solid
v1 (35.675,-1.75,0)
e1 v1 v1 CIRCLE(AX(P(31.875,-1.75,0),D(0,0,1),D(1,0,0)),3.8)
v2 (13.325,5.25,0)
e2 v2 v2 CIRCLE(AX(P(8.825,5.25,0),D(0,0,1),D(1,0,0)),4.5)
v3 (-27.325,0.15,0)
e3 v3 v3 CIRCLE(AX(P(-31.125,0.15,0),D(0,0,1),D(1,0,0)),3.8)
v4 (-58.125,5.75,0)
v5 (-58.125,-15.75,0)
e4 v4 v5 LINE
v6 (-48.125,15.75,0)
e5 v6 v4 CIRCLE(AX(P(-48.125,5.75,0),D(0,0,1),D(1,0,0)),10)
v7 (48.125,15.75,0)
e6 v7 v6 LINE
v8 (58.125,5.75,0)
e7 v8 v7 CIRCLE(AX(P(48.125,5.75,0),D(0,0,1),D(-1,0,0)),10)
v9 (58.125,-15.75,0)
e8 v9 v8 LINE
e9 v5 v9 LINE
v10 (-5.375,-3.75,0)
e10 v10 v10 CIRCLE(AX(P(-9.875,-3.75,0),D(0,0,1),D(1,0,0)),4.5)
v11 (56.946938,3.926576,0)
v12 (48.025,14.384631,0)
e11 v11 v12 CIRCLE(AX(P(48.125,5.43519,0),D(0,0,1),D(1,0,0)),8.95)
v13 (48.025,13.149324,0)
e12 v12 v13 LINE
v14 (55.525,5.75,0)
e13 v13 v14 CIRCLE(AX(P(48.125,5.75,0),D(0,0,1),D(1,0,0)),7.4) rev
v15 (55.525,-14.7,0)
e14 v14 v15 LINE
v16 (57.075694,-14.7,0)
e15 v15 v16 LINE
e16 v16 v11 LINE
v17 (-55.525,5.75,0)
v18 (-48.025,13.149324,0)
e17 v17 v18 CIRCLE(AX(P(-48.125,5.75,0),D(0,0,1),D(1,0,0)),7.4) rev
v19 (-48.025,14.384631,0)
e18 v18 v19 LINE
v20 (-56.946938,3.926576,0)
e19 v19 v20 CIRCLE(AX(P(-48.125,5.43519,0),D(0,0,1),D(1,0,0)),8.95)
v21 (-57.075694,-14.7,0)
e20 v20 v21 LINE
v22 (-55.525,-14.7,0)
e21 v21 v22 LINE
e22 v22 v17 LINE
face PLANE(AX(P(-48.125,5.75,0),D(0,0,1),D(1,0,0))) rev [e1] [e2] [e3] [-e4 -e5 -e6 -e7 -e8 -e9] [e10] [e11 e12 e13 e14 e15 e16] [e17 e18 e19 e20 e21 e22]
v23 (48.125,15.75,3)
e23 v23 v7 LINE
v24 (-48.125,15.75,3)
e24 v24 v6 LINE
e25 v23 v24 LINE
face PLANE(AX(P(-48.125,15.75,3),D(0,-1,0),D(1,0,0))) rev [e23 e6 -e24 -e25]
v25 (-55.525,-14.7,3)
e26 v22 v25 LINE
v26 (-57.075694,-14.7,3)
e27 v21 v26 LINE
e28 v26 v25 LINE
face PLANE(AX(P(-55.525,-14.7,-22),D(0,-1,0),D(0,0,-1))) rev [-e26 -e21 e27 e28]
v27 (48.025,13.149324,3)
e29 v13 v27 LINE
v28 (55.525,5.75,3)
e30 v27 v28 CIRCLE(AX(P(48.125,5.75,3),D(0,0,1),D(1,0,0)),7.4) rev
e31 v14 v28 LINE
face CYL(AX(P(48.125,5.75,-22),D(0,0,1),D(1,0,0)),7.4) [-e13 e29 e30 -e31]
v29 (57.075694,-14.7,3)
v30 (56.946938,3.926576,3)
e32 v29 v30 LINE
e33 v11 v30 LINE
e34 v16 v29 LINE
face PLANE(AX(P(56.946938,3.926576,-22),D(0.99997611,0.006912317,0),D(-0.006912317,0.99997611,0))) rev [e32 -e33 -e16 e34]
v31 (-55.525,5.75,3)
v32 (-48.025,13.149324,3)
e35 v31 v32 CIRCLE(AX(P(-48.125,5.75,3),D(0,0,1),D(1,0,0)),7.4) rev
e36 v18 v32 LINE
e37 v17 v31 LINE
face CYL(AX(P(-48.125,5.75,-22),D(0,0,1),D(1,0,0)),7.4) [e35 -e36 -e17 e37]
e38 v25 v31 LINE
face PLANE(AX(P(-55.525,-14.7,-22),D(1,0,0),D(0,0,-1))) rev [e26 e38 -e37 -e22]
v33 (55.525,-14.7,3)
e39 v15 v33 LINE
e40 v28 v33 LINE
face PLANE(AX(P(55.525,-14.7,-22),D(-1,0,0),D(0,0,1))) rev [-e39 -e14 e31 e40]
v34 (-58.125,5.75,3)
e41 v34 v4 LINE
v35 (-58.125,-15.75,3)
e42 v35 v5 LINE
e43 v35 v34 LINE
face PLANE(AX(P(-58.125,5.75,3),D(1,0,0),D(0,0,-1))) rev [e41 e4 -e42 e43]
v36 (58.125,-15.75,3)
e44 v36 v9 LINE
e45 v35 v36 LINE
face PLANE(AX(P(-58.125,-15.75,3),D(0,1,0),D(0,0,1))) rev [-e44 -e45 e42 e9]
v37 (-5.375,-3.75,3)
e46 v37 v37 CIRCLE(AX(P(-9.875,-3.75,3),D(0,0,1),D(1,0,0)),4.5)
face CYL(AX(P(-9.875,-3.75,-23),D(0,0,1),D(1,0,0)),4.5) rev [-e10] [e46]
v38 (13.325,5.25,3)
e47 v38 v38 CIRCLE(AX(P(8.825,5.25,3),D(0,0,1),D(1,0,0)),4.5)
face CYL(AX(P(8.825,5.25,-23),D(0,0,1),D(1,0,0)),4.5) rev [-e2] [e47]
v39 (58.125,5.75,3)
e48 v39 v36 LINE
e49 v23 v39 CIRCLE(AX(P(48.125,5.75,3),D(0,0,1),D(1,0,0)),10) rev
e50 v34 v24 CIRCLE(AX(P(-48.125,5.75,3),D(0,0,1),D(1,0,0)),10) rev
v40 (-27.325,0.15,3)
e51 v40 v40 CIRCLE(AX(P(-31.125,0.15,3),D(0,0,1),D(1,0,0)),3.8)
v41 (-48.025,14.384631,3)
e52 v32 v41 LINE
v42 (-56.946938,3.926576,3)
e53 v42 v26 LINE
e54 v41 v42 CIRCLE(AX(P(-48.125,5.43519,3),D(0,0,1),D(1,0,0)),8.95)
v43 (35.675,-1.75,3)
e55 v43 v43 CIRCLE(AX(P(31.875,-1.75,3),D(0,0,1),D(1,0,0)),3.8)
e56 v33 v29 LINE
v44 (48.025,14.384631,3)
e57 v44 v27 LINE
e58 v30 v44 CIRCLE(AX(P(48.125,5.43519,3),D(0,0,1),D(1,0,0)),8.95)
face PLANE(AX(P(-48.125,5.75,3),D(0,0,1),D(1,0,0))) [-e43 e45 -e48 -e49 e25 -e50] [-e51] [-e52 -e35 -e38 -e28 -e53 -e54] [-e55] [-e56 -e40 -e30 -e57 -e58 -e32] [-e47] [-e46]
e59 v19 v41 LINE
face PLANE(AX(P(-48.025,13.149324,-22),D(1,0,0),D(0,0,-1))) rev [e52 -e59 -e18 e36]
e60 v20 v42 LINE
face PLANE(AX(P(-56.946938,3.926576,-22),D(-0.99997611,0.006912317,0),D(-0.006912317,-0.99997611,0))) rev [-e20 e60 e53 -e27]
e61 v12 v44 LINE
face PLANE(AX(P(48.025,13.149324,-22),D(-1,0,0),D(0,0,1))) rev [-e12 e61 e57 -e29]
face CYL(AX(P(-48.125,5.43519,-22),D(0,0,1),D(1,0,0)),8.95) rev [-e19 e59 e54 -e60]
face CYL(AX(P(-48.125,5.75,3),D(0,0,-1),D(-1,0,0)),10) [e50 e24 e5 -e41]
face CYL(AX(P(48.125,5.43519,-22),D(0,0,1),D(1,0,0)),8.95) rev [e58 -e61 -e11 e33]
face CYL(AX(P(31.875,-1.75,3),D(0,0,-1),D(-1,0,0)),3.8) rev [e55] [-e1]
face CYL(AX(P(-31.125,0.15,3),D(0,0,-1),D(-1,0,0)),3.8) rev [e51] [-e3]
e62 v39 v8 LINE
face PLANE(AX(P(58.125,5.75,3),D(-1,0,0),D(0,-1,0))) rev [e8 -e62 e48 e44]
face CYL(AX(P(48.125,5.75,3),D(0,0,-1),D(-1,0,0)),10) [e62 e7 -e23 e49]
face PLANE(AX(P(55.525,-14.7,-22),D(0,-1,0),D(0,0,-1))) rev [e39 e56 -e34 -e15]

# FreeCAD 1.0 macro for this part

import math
import FreeCAD as App
import Part
import Sketcher
from FreeCAD import Vector
Q = App.Units.Quantity

doc = App.newDocument("Part")
body = doc.addObject("PartDesign::Body", "Body")

# Sketch on XY plane
sketch1 = body.newObject("Sketcher::SketchObject", "Sketch")
sketch1.AttachmentSupport = (doc.getObject("XY_Plane"), [""])
sketch1.MapMode = "FlatFace"
sketch1.addGeometry(Part.LineSegment(Vector(48.1, 15.8, 0), Vector(-48.1, 15.8, 0)), False)
sketch1.addGeometry(Part.ArcOfCircle(Part.Circle(Vector(-48.1, 5.8, 0), Vector(0, 0, 1), 10), math.radians(90), math.radians(180)), False)
sketch1.addGeometry(Part.LineSegment(Vector(-58.1, 5.8, 0), Vector(-58.1, -15.8, 0)), False)
sketch1.addGeometry(Part.LineSegment(Vector(-58.1, -15.8, 0), Vector(58.1, -15.8, 0)), False)
sketch1.addGeometry(Part.LineSegment(Vector(58.1, -15.8, 0), Vector(58.1, 5.8, 0)), False)
sketch1.addGeometry(Part.ArcOfCircle(Part.Circle(Vector(48.1, 5.8, 0), Vector(0, 0, 1), 10), math.radians(0), math.radians(90)), False)
sketch1.addGeometry(Part.Circle(Vector(31.9, -1.8, 0), Vector(0, 0, 1), 3.8), False)
sketch1.addGeometry(Part.Circle(Vector(-31.1, 0.1, 0), Vector(0, 0, 1), 3.8), False)
sketch1.addConstraint(Sketcher.Constraint("Tangent", 0, 2, 1, 1))
sketch1.addConstraint(Sketcher.Constraint("Tangent", 1, 2, 2, 1))
sketch1.addConstraint(Sketcher.Constraint("Coincident", 2, 2, 3, 1))
sketch1.addConstraint(Sketcher.Constraint("Coincident", 3, 2, 4, 1))
sketch1.addConstraint(Sketcher.Constraint("Tangent", 4, 2, 5, 1))
sketch1.addConstraint(Sketcher.Constraint("Tangent", 5, 2, 0, 1))
sketch1.addConstraint(Sketcher.Constraint("Horizontal", 0))
sketch1.addConstraint(Sketcher.Constraint("Vertical", 2))
sketch1.addConstraint(Sketcher.Constraint("Horizontal", 3))
sketch1.addConstraint(Sketcher.Constraint("Vertical", 4))
sketch1.addConstraint(Sketcher.Constraint("Equal", 1, 5))
sketch1.addConstraint(Sketcher.Constraint("Equal", 6, 7))
sketch1.addConstraint(Sketcher.Constraint("Radius", 1, Q("10 mm")))
sketch1.addConstraint(Sketcher.Constraint("Diameter", 6, Q("7.6 mm")))
sketch1.addConstraint(Sketcher.Constraint("DistanceY", 2, 2, 2, 1, Q("21.5 mm")))
sketch1.addConstraint(Sketcher.Constraint("DistanceX", 1, 3, 6, 3, Q("80 mm")))
sketch1.addConstraint(Sketcher.Constraint("DistanceX", 1, 3, 7, 3, Q("17 mm")))
sketch1.addConstraint(Sketcher.Constraint("DistanceY", 2, 2, 6, 3, Q("14 mm")))
sketch1.addConstraint(Sketcher.Constraint("DistanceX", 0, 2, 0, 1, Q("96.25 mm")))
sketch1.addConstraint(Sketcher.Constraint("DistanceY", 7, 3, 1, 3, Q("5.6 mm")))
sketch1.addConstraint(Sketcher.Constraint("DistanceY", -1, 1, 1, 3, Q("5.75 mm")))
sketch1.addConstraint(Sketcher.Constraint("DistanceX", 1, 3, -1, 1, Q("48.125 mm")))
pad1 = body.newObject("PartDesign::Pad", "Pad")
pad1.Profile = sketch1
pad1.Length = 3

# Sketch on XY plane
sketch2 = body.newObject("Sketcher::SketchObject", "Sketch001")
sketch2.AttachmentSupport = (doc.getObject("XY_Plane"), [""])
sketch2.MapMode = "FlatFace"
sketch2.AttachmentOffset = App.Placement(Vector(0, 0, 3), App.Rotation())
sketch2.addGeometry(Part.Circle(Vector(8.8, 5.2, 0), Vector(0, 0, 1), 4.3), False)
sketch2.addGeometry(Part.Circle(Vector(-9.9, -3.8, 0), Vector(0, 0, 1), 4.3), False)
sketch2.addGeometry(Part.LineSegment(Vector(55.6, 5.8, 0), Vector(55.6, -15.8, 0)), False)
sketch2.addGeometry(Part.LineSegment(Vector(55.6, -15.8, 0), Vector(58.1, -15.8, 0)), False)
sketch2.addGeometry(Part.LineSegment(Vector(58.1, -15.8, 0), Vector(58.1, 5.8, 0)), False)
sketch2.addGeometry(Part.ArcOfCircle(Part.Circle(Vector(48.1, 5.8, 0), Vector(0, 0, 1), 10), math.radians(0), math.radians(90)), False)
sketch2.addGeometry(Part.LineSegment(Vector(48.1, 15.8, 0), Vector(48.1, 13.2, 0)), False)
sketch2.addGeometry(Part.ArcOfCircle(Part.Circle(Vector(48.1, 5.8, 0), Vector(0, 0, 1), 7.5), math.radians(0), math.radians(90)), False)
sketch2.addGeometry(Part.LineSegment(Vector(-58.1, -15.8, 0), Vector(-55.6, -15.8, 0)), False)
sketch2.addGeometry(Part.LineSegment(Vector(-55.6, -15.8, 0), Vector(-55.6, 5.8, 0)), False)
sketch2.addGeometry(Part.ArcOfCircle(Part.Circle(Vector(-48.1, 5.8, 0), Vector(0, 0, 1), 7.5), math.radians(90), math.radians(180)), False)
sketch2.addGeometry(Part.LineSegment(Vector(-48.1, 13.2, 0), Vector(-48.1, 15.8, 0)), False)
sketch2.addGeometry(Part.ArcOfCircle(Part.Circle(Vector(-48.1, 5.8, 0), Vector(0, 0, 1), 10), math.radians(90), math.radians(180)), False)
sketch2.addGeometry(Part.LineSegment(Vector(-58.1, 5.8, 0), Vector(-58.1, -15.8, 0)), False)
sketch2.addConstraint(Sketcher.Constraint("Coincident", 2, 2, 3, 1))
sketch2.addConstraint(Sketcher.Constraint("Coincident", 3, 2, 4, 1))
sketch2.addConstraint(Sketcher.Constraint("Tangent", 4, 2, 5, 1))
sketch2.addConstraint(Sketcher.Constraint("Coincident", 5, 2, 6, 1))
sketch2.addConstraint(Sketcher.Constraint("Coincident", 6, 2, 7, 2))
sketch2.addConstraint(Sketcher.Constraint("Tangent", 7, 1, 2, 1))
sketch2.addConstraint(Sketcher.Constraint("Coincident", 8, 2, 9, 1))
sketch2.addConstraint(Sketcher.Constraint("Tangent", 9, 2, 10, 2))
sketch2.addConstraint(Sketcher.Constraint("Coincident", 10, 1, 11, 1))
sketch2.addConstraint(Sketcher.Constraint("Coincident", 11, 2, 12, 1))
sketch2.addConstraint(Sketcher.Constraint("Tangent", 12, 2, 13, 1))
sketch2.addConstraint(Sketcher.Constraint("Coincident", 13, 2, 8, 1))
sketch2.addConstraint(Sketcher.Constraint("Vertical", 2))
sketch2.addConstraint(Sketcher.Constraint("Horizontal", 3))
sketch2.addConstraint(Sketcher.Constraint("Vertical", 4))
sketch2.addConstraint(Sketcher.Constraint("Vertical", 6))
sketch2.addConstraint(Sketcher.Constraint("Horizontal", 8))
sketch2.addConstraint(Sketcher.Constraint("Vertical", 9))
sketch2.addConstraint(Sketcher.Constraint("Vertical", 11))
sketch2.addConstraint(Sketcher.Constraint("Vertical", 13))
sketch2.addConstraint(Sketcher.Constraint("Coincident", 7, 3, 5, 3))
sketch2.addConstraint(Sketcher.Constraint("Coincident", 12, 3, 10, 3))
sketch2.addConstraint(Sketcher.Constraint("Equal", 0, 1))
sketch2.addConstraint(Sketcher.Constraint("Equal", 7, 10))
sketch2.addConstraint(Sketcher.Constraint("Equal", 5, 12))
sketch2.addConstraint(Sketcher.Constraint("Symmetric", 5, 3, 10, 3, -2))
sketch2.addConstraint(Sketcher.Constraint("Horizontal", 3, 2, 8, 2))
sketch2.addConstraint(Sketcher.Constraint("Vertical", 7, 3, 5, 2))
sketch2.addConstraint(Sketcher.Constraint("Vertical", 12, 3, 10, 1))
sketch2.addConstraint(Sketcher.Constraint("Radius", 5, Q("10 mm")))
sketch2.addConstraint(Sketcher.Constraint("Diameter", 0, Q("8.7 mm")))
sketch2.addConstraint(Sketcher.Constraint("Radius", 7, Q("7.5 mm")))
sketch2.addConstraint(Sketcher.Constraint("DistanceY", 2, 2, 2, 1, Q("21.5 mm")))
sketch2.addConstraint(Sketcher.Constraint("DistanceY", 1, 3, 0, 3, Q("9 mm")))
sketch2.addConstraint(Sketcher.Constraint("DistanceX", 1, 3, 5, 3, Q("58 mm")))
sketch2.addConstraint(Sketcher.Constraint("DistanceY", 2, 2, 0, 3, Q("21 mm")))
sketch2.addConstraint(Sketcher.Constraint("DistanceX", 1, 3, 0, 3, Q("18.7 mm")))
sketch2.addConstraint(Sketcher.Constraint("DistanceY", -1, 1, 0, 3, Q("5.25 mm")))
sketch2.addConstraint(Sketcher.Constraint("DistanceX", 10, 3, 1, 3, Q("38.25 mm")))
pad2 = body.newObject("PartDesign::Pad", "Pad001")
pad2.Profile = sketch2
pad2.Length = 25

# Sketch on XY plane
sketch3 = body.newObject("Sketcher::SketchObject", "Sketch002")
sketch3.AttachmentSupport = (doc.getObject("XY_Plane"), [""])
sketch3.MapMode = "FlatFace"
sketch3.AttachmentOffset = App.Placement(Vector(0, 0, 27), App.Rotation())
sketch3.addGeometry(Part.Circle(Vector(8.8, 5.2, 0), Vector(0, 0, 1), 4.3), False)
sketch3.addGeometry(Part.Circle(Vector(-9.9, -3.8, 0), Vector(0, 0, 1), 4.3), False)
sketch3.addConstraint(Sketcher.Constraint("Equal", 0, 1))
sketch3.addConstraint(Sketcher.Constraint("Diameter", 0, Q("8.7 mm")))
sketch3.addConstraint(Sketcher.Constraint("DistanceY", 1, 3, 0, 3, Q("9 mm")))
sketch3.addConstraint(Sketcher.Constraint("DistanceX", 1, 3, 0, 3, Q("18.7 mm")))
sketch3.addConstraint(Sketcher.Constraint("DistanceY", -1, 1, 0, 3, Q("5.25 mm")))
sketch3.addConstraint(Sketcher.Constraint("DistanceX", -1, 1, 0, 3, Q("8.825 mm")))
pocket1 = body.newObject("PartDesign::Pocket", "Pocket")
pocket1.Profile = sketch3
pocket1.Length = 1
pocket1.Reversed = True

# Sketch on XY plane
sketch4 = body.newObject("Sketcher::SketchObject", "Sketch003")
sketch4.AttachmentSupport = (doc.getObject("XY_Plane"), [""])
sketch4.MapMode = "FlatFace"
sketch4.AttachmentOffset = App.Placement(Vector(0, 0, 28), App.Rotation())
sketch4.addGeometry(Part.LineSegment(Vector(55.5, 5.8, 0), Vector(55.5, -14.7, 0)), False)
sketch4.addGeometry(Part.LineSegment(Vector(55.5, -14.7, 0), Vector(57.1, -14.7, 0)), False)
sketch4.addGeometry(Part.LineSegment(Vector(57.1, -14.7, 0), Vector(56.9, 3.9, 0)), False)
sketch4.addGeometry(Part.ArcOfCircle(Part.Circle(Vector(48.1, 5.4, 0), Vector(0, 0, 1), 8.9), math.radians(-10), math.radians(91)), False)
sketch4.addGeometry(Part.LineSegment(Vector(48, 14.4, 0), Vector(48, 13.1, 0)), False)
sketch4.addGeometry(Part.ArcOfCircle(Part.Circle(Vector(48.1, 5.7, 0), Vector(0, 0, 1), 7.4), math.radians(0), math.radians(91)), False)
sketch4.addGeometry(Part.LineSegment(Vector(-56.9, 3.9, 0), Vector(-57.1, -14.7, 0)), False)
sketch4.addGeometry(Part.LineSegment(Vector(-57.1, -14.7, 0), Vector(-55.5, -14.7, 0)), False)
sketch4.addGeometry(Part.LineSegment(Vector(-55.5, -14.7, 0), Vector(-55.5, 5.8, 0)), False)
sketch4.addGeometry(Part.ArcOfCircle(Part.Circle(Vector(-48.1, 5.7, 0), Vector(0, 0, 1), 7.4), math.radians(89), math.radians(180)), False)
sketch4.addGeometry(Part.LineSegment(Vector(-48, 13.1, 0), Vector(-48, 14.4, 0)), False)
sketch4.addGeometry(Part.ArcOfCircle(Part.Circle(Vector(-48.1, 5.4, 0), Vector(0, 0, 1), 8.9), math.radians(89), math.radians(190)), False)
sketch4.addConstraint(Sketcher.Constraint("Coincident", 0, 2, 1, 1))
sketch4.addConstraint(Sketcher.Constraint("Coincident", 1, 2, 2, 1))
sketch4.addConstraint(Sketcher.Constraint("Coincident", 2, 2, 3, 1))
sketch4.addConstraint(Sketcher.Constraint("Coincident", 3, 2, 4, 1))
sketch4.addConstraint(Sketcher.Constraint("Coincident", 4, 2, 5, 2))
sketch4.addConstraint(Sketcher.Constraint("Tangent", 5, 1, 0, 1))
sketch4.addConstraint(Sketcher.Constraint("Coincident", 6, 2, 7, 1))
sketch4.addConstraint(Sketcher.Constraint("Coincident", 7, 2, 8, 1))
sketch4.addConstraint(Sketcher.Constraint("Tangent", 8, 2, 9, 2))
sketch4.addConstraint(Sketcher.Constraint("Coincident", 9, 1, 10, 1))
sketch4.addConstraint(Sketcher.Constraint("Coincident", 10, 2, 11, 1))
sketch4.addConstraint(Sketcher.Constraint("Coincident", 11, 2, 6, 1))
sketch4.addConstraint(Sketcher.Constraint("Vertical", 0))
sketch4.addConstraint(Sketcher.Constraint("Horizontal", 1))
sketch4.addConstraint(Sketcher.Constraint("Vertical", 4))
sketch4.addConstraint(Sketcher.Constraint("Horizontal", 7))
sketch4.addConstraint(Sketcher.Constraint("Vertical", 8))
sketch4.addConstraint(Sketcher.Constraint("Vertical", 10))
sketch4.addConstraint(Sketcher.Constraint("Equal", 5, 9))
sketch4.addConstraint(Sketcher.Constraint("Equal", 3, 11))
sketch4.addConstraint(Sketcher.Constraint("Symmetric", 5, 3, 9, 3, -2))
sketch4.addConstraint(Sketcher.Constraint("Symmetric", 3, 3, 11, 3, -2))
sketch4.addConstraint(Sketcher.Constraint("Symmetric", 1, 2, 6, 2, -2))
sketch4.addConstraint(Sketcher.Constraint("Horizontal", 4, 2, 9, 1))
sketch4.addConstraint(Sketcher.Constraint("Horizontal", 2, 2, 11, 2))
sketch4.addConstraint(Sketcher.Constraint("Vertical", 3, 3, 5, 3))
sketch4.addConstraint(Sketcher.Constraint("Radius", 5, Q("7.4 mm")))
sketch4.addConstraint(Sketcher.Constraint("Radius", 3, Q("8.95 mm")))
sketch4.addConstraint(Sketcher.Constraint("DistanceY", 0, 2, 0, 1, Q("20.45 mm")))
sketch4.addConstraint(Sketcher.Constraint("DistanceY", 0, 2, -1, 1, Q("14.7 mm")))
sketch4.addConstraint(Sketcher.Constraint("DistanceX", 3, 2, 5, 3, Q("0.1 mm")))
sketch4.addConstraint(Sketcher.Constraint("DistanceX", 9, 3, 5, 3, Q("96.25 mm")))
sketch4.addConstraint(Sketcher.Constraint("Distance", 2, Q("18.627021 mm")))
sketch4.addConstraint(Sketcher.Constraint("DistanceX", 1, 1, 1, 2, Q("1.550694 mm")))
sketch4.addConstraint(Sketcher.Constraint("DistanceY", 4, 2, 4, 1, Q("1.235307 mm")))
pocket2 = body.newObject("PartDesign::Pocket", "Pocket001")
pocket2.Profile = sketch4
pocket2.Length = 50

# Sketch on XY plane
sketch5 = body.newObject("Sketcher::SketchObject", "Sketch004")
sketch5.AttachmentSupport = (doc.getObject("XY_Plane"), [""])
sketch5.MapMode = "FlatFace"
sketch5.AttachmentOffset = App.Placement(Vector(0, 0, 27), App.Rotation())
sketch5.addGeometry(Part.Circle(Vector(-9.9, -3.8, 0), Vector(0, 0, 1), 4.5), False)
sketch5.addGeometry(Part.Circle(Vector(8.8, 5.2, 0), Vector(0, 0, 1), 4.5), False)
sketch5.addConstraint(Sketcher.Constraint("Equal", 0, 1))
sketch5.addConstraint(Sketcher.Constraint("Diameter", 0, Q("9 mm")))
sketch5.addConstraint(Sketcher.Constraint("DistanceY", 0, 3, 1, 3, Q("9 mm")))
sketch5.addConstraint(Sketcher.Constraint("DistanceX", 0, 3, 1, 3, Q("18.7 mm")))
sketch5.addConstraint(Sketcher.Constraint("DistanceY", 0, 3, -1, 1, Q("3.75 mm")))
sketch5.addConstraint(Sketcher.Constraint("DistanceX", 0, 3, -1, 1, Q("9.875 mm")))
pocket3 = body.newObject("PartDesign::Pocket", "Pocket002")
pocket3.Profile = sketch5
pocket3.Length = 50

# Sketch on XY plane
sketch6 = body.newObject("Sketcher::SketchObject", "Sketch005")
sketch6.AttachmentSupport = (doc.getObject("XY_Plane"), [""])
sketch6.MapMode = "FlatFace"
sketch6.AttachmentOffset = App.Placement(Vector(0, 0, 28), App.Rotation())
sketch6.addGeometry(Part.LineSegment(Vector(57.1, -14.7, 0), Vector(55.6, -14.7, 0)), False)
sketch6.addGeometry(Part.LineSegment(Vector(55.6, -14.7, 0), Vector(55.6, -15.8, 0)), False)
sketch6.addGeometry(Part.LineSegment(Vector(55.6, -15.8, 0), Vector(58.1, -15.8, 0)), False)
sketch6.addGeometry(Part.LineSegment(Vector(58.1, -15.8, 0), Vector(58.1, 5.8, 0)), False)
sketch6.addGeometry(Part.ArcOfCircle(Part.Circle(Vector(48.1, 5.8, 0), Vector(0, 0, 1), 10), math.radians(0), math.radians(90)), False)
sketch6.addGeometry(Part.LineSegment(Vector(48.1, 15.8, 0), Vector(48.1, 14.4, 0)), False)
sketch6.addGeometry(Part.ArcOfCircle(Part.Circle(Vector(48.1, 5.4, 0), Vector(0, 0, 1), 8.9), math.radians(-10), math.radians(90)), False)
sketch6.addGeometry(Part.LineSegment(Vector(56.9, 3.9, 0), Vector(57.1, -14.7, 0)), False)
sketch6.addGeometry(Part.LineSegment(Vector(-48.1, 14.4, 0), Vector(-48.1, 15.8, 0)), False)
sketch6.addGeometry(Part.ArcOfCircle(Part.Circle(Vector(-48.1, 5.8, 0), Vector(0, 0, 1), 10), math.radians(90), math.radians(180)), False)
sketch6.addGeometry(Part.LineSegment(Vector(-58.1, 5.8, 0), Vector(-58.1, -15.8, 0)), False)
sketch6.addGeometry(Part.LineSegment(Vector(-58.1, -15.8, 0), Vector(-55.6, -15.8, 0)), False)
sketch6.addGeometry(Part.LineSegment(Vector(-55.6, -15.8, 0), Vector(-55.6, -14.7, 0)), False)
sketch6.addGeometry(Part.LineSegment(Vector(-55.6, -14.7, 0), Vector(-57.1, -14.7, 0)), False)
sketch6.addGeometry(Part.LineSegment(Vector(-57.1, -14.7, 0), Vector(-56.9, 3.9, 0)), False)
sketch6.addGeometry(Part.ArcOfCircle(Part.Circle(Vector(-48.1, 5.4, 0), Vector(0, 0, 1), 8.9), math.radians(90), math.radians(190)), False)
sketch6.addConstraint(Sketcher.Constraint("Coincident", 0, 2, 1, 1))
sketch6.addConstraint(Sketcher.Constraint("Coincident", 1, 2, 2, 1))
sketch6.addConstraint(Sketcher.Constraint("Coincident", 2, 2, 3, 1))
sketch6.addConstraint(Sketcher.Constraint("Tangent", 3, 2, 4, 1))
sketch6.addConstraint(Sketcher.Constraint("Coincident", 4, 2, 5, 1))
sketch6.addConstraint(Sketcher.Constraint("Coincident", 5, 2, 6, 2))
sketch6.addConstraint(Sketcher.Constraint("Coincident", 6, 1, 7, 1))
sketch6.addConstraint(Sketcher.Constraint("Coincident", 7, 2, 0, 1))
sketch6.addConstraint(Sketcher.Constraint("Coincident", 8, 2, 9, 1))
sketch6.addConstraint(Sketcher.Constraint("Tangent", 9, 2, 10, 1))
sketch6.addConstraint(Sketcher.Constraint("Coincident", 10, 2, 11, 1))
sketch6.addConstraint(Sketcher.Constraint("Coincident", 11, 2, 12, 1))
sketch6.addConstraint(Sketcher.Constraint("Coincident", 12, 2, 13, 1))
sketch6.addConstraint(Sketcher.Constraint("Coincident", 13, 2, 14, 1))
sketch6.addConstraint(Sketcher.Constraint("Coincident", 14, 2, 15, 2))
sketch6.addConstraint(Sketcher.Constraint("Coincident", 15, 1, 8, 1))
sketch6.addConstraint(Sketcher.Constraint("Horizontal", 0))
sketch6.addConstraint(Sketcher.Constraint("Vertical", 1))
sketch6.addConstraint(Sketcher.Constraint("Horizontal", 2))
sketch6.addConstraint(Sketcher.Constraint("Vertical", 3))
sketch6.addConstraint(Sketcher.Constraint("Vertical", 5))
sketch6.addConstraint(Sketcher.Constraint("Vertical", 8))
sketch6.addConstraint(Sketcher.Constraint("Vertical", 10))
sketch6.addConstraint(Sketcher.Constraint("Horizontal", 11))
sketch6.addConstraint(Sketcher.Constraint("Vertical", 12))
sketch6.addConstraint(Sketcher.Constraint("Horizontal", 13))
sketch6.addConstraint(Sketcher.Constraint("Equal", 4, 9))
sketch6.addConstraint(Sketcher.Constraint("Equal", 6, 15))
sketch6.addConstraint(Sketcher.Constraint("Symmetric", 4, 3, 9, 3, -2))
sketch6.addConstraint(Sketcher.Constraint("Symmetric", 6, 3, 15, 3, -2))
sketch6.addConstraint(Sketcher.Constraint("Symmetric", 1, 2, 11, 2, -2))
sketch6.addConstraint(Sketcher.Constraint("Symmetric", 7, 2, 13, 2, -2))
sketch6.addConstraint(Sketcher.Constraint("Horizontal", 6, 1, 14, 2))
sketch6.addConstraint(Sketcher.Constraint("Vertical", 4, 3, 6, 3))
sketch6.addConstraint(Sketcher.Constraint("Vertical", 6, 3, 4, 2))
sketch6.addConstraint(Sketcher.Constraint("Vertical", 15, 3, 8, 2))
sketch6.addConstraint(Sketcher.Constraint("Radius", 4, Q("10 mm")))
sketch6.addConstraint(Sketcher.Constraint("Radius", 6, Q("8.95 mm")))
sketch6.addConstraint(Sketcher.Constraint("DistanceX", 2, 1, 2, 2, Q("2.5 mm")))
sketch6.addConstraint(Sketcher.Constraint("DistanceY", 3, 1, 3, 2, Q("21.5 mm")))
sketch6.addConstraint(Sketcher.Constraint("DistanceY", 1, 2, 1, 1, Q("1.05 mm")))
sketch6.addConstraint(Sketcher.Constraint("DistanceY", 0, 2, -1, 1, Q("14.7 mm")))
sketch6.addConstraint(Sketcher.Constraint("DistanceX", 9, 3, 4, 3, Q("96.25 mm")))
sketch6.addConstraint(Sketcher.Constraint("DistanceY", 5, 2, 5, 1, Q("1.36481 mm")))
sketch6.addConstraint(Sketcher.Constraint("Distance", 7, Q("18.627021 mm")))
sketch6.addConstraint(Sketcher.Constraint("DistanceX", 0, 2, 0, 1, Q("1.450694 mm")))
pocket4 = body.newObject("PartDesign::Pocket", "Pocket003")
pocket4.Profile = sketch6
pocket4.Length = 25

doc.recompute()
